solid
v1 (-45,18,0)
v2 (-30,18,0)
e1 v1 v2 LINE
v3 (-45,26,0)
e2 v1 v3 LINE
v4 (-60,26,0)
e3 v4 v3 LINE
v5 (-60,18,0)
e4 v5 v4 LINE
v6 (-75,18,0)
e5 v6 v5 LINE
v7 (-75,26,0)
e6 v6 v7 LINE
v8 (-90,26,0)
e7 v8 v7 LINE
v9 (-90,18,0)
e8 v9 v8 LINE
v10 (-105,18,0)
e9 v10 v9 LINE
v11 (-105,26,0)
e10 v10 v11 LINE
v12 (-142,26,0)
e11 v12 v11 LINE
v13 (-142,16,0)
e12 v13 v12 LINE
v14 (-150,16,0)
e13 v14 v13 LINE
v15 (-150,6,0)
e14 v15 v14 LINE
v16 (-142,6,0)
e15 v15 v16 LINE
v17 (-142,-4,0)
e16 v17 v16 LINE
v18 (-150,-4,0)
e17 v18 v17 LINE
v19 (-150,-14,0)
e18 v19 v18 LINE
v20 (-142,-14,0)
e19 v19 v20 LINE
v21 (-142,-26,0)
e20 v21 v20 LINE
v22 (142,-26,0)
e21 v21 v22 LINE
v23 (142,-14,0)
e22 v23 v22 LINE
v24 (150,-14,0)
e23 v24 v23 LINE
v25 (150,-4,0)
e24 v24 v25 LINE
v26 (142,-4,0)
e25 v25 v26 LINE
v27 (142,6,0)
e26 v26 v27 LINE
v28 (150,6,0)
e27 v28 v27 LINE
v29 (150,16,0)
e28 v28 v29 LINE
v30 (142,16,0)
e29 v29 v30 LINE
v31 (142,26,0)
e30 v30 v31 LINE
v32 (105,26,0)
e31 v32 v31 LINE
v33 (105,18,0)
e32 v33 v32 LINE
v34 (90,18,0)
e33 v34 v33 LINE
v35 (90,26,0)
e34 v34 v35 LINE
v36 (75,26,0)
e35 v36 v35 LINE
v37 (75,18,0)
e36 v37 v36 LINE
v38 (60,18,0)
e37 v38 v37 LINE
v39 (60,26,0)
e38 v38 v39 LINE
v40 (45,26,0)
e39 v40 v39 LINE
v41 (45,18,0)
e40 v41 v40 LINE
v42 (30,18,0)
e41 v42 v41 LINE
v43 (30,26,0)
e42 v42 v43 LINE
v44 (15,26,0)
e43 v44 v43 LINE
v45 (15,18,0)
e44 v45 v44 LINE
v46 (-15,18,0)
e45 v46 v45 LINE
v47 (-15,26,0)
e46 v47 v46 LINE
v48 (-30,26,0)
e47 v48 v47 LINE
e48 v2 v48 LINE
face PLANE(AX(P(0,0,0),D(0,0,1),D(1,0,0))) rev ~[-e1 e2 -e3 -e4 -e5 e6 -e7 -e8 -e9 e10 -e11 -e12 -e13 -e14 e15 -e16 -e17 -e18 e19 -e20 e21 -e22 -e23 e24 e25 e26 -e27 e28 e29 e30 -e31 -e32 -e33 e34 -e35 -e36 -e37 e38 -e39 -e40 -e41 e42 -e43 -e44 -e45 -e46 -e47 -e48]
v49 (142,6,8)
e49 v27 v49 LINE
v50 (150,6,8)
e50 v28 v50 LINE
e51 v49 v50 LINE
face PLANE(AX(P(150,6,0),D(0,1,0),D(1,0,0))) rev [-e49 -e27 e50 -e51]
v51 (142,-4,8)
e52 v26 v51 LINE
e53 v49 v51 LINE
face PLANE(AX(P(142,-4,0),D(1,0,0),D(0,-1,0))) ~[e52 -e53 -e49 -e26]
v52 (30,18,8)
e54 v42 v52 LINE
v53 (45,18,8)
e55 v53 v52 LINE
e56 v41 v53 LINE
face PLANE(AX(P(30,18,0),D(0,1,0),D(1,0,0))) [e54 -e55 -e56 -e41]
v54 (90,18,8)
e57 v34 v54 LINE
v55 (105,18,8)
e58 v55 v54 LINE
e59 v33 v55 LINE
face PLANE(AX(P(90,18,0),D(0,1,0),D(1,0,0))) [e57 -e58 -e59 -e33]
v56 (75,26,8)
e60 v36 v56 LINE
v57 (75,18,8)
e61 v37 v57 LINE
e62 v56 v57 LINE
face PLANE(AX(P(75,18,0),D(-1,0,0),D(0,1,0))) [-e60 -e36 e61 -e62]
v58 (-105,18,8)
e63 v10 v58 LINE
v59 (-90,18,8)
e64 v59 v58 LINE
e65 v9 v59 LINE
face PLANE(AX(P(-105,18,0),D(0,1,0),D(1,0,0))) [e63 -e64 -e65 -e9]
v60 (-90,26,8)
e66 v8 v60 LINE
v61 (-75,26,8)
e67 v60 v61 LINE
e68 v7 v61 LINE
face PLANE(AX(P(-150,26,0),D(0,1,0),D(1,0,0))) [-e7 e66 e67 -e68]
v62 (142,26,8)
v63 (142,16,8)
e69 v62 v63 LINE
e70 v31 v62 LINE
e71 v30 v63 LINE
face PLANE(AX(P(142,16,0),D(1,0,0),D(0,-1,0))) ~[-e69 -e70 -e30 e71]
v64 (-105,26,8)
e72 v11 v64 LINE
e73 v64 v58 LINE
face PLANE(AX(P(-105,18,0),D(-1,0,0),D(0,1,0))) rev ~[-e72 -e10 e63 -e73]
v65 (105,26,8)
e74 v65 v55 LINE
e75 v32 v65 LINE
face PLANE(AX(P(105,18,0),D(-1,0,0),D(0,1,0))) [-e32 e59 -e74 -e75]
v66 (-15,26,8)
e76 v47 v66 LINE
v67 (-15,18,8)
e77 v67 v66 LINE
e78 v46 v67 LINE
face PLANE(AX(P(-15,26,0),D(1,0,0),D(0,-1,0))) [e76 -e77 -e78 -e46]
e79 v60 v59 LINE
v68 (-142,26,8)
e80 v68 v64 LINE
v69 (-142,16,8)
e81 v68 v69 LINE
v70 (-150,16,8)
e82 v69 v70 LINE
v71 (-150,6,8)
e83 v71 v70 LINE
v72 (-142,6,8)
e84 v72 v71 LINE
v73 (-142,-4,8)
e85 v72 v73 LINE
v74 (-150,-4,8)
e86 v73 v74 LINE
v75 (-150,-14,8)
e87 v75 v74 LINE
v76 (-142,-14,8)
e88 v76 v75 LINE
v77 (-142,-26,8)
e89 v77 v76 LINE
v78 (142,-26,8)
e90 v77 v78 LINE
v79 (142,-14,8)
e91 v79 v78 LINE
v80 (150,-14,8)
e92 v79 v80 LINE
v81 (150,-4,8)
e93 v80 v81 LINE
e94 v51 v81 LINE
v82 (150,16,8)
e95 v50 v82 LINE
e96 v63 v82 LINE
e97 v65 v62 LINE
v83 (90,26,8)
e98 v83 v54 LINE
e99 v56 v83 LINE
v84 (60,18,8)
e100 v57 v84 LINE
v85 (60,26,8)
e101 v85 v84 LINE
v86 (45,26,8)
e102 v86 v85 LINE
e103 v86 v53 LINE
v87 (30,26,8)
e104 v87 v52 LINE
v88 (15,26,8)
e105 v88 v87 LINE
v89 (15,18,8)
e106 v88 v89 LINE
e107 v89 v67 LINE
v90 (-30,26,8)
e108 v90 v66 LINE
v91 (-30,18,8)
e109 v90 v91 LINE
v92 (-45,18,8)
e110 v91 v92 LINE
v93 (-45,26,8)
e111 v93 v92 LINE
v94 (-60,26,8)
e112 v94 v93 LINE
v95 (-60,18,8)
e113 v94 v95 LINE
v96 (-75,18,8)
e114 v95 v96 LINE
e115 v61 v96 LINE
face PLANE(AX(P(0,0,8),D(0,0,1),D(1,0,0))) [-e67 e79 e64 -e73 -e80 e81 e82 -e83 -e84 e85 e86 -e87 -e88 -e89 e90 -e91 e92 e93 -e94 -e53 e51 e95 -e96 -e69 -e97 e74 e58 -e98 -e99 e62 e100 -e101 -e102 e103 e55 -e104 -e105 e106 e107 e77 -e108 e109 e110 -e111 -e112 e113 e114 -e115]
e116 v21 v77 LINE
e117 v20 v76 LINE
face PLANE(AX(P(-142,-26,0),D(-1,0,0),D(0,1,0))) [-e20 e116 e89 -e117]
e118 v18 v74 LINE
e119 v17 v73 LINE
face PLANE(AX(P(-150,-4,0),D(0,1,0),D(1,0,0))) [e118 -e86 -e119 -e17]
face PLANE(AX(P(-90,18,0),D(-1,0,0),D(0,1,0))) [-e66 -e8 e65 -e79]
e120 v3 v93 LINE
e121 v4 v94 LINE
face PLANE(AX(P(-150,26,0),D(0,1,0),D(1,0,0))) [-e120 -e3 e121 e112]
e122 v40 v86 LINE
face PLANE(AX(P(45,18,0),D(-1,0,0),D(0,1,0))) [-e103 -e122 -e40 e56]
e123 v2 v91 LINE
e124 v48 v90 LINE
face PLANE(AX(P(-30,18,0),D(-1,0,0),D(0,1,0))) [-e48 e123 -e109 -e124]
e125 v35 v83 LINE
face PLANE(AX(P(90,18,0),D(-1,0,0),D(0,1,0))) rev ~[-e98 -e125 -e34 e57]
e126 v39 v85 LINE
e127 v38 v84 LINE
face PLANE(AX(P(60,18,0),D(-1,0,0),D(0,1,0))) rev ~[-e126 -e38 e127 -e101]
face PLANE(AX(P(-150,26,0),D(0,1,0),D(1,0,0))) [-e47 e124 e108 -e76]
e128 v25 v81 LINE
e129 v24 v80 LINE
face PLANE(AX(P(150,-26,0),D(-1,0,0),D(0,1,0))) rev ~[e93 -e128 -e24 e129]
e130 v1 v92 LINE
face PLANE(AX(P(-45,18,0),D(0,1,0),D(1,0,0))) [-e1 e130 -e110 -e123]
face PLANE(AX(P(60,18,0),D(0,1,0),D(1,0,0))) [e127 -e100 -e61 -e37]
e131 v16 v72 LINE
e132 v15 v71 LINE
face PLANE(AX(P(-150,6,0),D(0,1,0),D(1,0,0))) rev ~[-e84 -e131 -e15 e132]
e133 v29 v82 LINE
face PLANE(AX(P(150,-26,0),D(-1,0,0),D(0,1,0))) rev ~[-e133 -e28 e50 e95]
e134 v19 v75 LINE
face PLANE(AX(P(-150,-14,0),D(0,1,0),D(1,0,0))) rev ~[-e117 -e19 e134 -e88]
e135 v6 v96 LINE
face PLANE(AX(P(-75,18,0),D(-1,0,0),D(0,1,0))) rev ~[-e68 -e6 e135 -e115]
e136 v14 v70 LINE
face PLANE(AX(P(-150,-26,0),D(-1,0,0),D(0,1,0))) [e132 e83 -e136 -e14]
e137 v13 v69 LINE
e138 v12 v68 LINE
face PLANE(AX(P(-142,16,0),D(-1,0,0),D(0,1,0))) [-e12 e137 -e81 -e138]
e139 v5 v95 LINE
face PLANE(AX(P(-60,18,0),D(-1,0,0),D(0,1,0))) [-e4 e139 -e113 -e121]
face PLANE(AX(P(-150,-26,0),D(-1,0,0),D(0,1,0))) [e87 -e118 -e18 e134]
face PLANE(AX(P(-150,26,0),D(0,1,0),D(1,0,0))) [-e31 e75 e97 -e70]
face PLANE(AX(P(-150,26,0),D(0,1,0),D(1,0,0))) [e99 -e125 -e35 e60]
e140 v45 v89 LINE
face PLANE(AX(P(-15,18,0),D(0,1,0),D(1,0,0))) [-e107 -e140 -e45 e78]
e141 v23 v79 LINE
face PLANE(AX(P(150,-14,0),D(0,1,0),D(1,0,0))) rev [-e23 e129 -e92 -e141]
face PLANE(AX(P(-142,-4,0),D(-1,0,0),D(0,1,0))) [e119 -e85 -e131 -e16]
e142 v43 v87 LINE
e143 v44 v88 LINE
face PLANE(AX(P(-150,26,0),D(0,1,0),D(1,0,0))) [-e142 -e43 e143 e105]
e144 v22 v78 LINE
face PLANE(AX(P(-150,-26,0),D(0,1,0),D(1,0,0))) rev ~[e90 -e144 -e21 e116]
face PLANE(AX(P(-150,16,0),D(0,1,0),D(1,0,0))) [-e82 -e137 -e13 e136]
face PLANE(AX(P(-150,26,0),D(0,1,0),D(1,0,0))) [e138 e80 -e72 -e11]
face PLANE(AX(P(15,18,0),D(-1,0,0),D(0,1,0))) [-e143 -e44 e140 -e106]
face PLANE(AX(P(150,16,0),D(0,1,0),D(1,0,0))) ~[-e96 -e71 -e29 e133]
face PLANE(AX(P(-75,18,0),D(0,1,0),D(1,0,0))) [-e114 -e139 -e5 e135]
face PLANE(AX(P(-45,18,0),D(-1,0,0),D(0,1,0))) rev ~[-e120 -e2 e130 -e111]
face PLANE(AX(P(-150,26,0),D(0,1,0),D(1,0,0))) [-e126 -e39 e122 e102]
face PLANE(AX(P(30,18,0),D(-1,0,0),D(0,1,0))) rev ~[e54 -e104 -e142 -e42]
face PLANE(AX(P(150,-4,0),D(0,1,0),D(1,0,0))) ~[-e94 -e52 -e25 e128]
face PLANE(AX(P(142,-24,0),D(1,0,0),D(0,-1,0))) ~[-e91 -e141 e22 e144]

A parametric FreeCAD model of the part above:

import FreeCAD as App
import Part
import Sketcher
Q = App.Units.Quantity


def add_polygon(sketch, points):
    """Adds a closed chain of lines whose ends are joined by coincident constraints."""
    first, n = sketch.GeometryCount, len(points)
    for a, b in zip(points, points[1:] + points[:1]):
        sketch.addGeometry(Part.LineSegment(App.Vector(*a, 0), App.Vector(*b, 0)), False)
    for i in range(n):
        sketch.addConstraint(Sketcher.Constraint("Coincident", first + i, 2, first + (i + 1) % n, 1))

doc = App.newDocument("Part")
params = doc.addObject("Spreadsheet::Sheet", "Params")
for row, (alias, value) in enumerate([
    ("sketch1_width", "300 mm"),
    ("sketch1_height", "52 mm"),
    ("pad1_length", "8 mm"),
    ("sketch2_width", "8 mm"),
    ("sketch2_height", "10 mm"),
    ("sketch3_width", "8 mm"),
    ("sketch3_height", "2 mm"),
    ("sketch4_width", "15 mm"),
    ("sketch4_width2", "30 mm"),
    ("sketch4_height", "8 mm"),
    ("pocket3_length", "10 mm"),
], start=1):
    params.set(f"A{row}", alias)
    params.set(f"B{row}", "=" + value)
    params.setAlias(f"B{row}", alias)

body = doc.addObject("PartDesign::Body", "Body")

sketch1 = body.newObject("Sketcher::SketchObject", "Sketch")
sketch1.AttachmentSupport = (doc.getObject("XY_Plane"), [""])
sketch1.MapMode = "FlatFace"
add_polygon(sketch1, [(-150, 26), (-150, -26), (150, -26), (150, 26)])
sketch1.addConstraint([
    Sketcher.Constraint("Vertical", 0),
    Sketcher.Constraint("Horizontal", 1),
    Sketcher.Constraint("Vertical", 2),
    Sketcher.Constraint("Horizontal", 3),
    Sketcher.Constraint("Symmetric", 0, 2, 2, 2, -1, 1),
    Sketcher.Constraint("DistanceX", 1, 1, 1, 2, Q("300 mm")),
    Sketcher.Constraint("DistanceY", 0, 2, 0, 1, Q("52 mm")),
])
sketch1.setExpression("Constraints[9]", "Params.sketch1_width")
sketch1.setExpression("Constraints[10]", "Params.sketch1_height")
pad1 = body.newObject("PartDesign::Pad", "Pad")
pad1.Profile = sketch1
pad1.setExpression("Length", "Params.pad1_length")

sketch2 = body.newObject("Sketcher::SketchObject", "Sketch001")
sketch2.AttachmentSupport = (doc.getObject("XY_Plane"), [""])
sketch2.MapMode = "FlatFace"
add_polygon(sketch2, [(-150, 6), (-150, -4), (-142, -4), (-142, 6)])
add_polygon(sketch2, [(-150, 26), (-150, 16), (-142, 16), (-142, 26)])
add_polygon(sketch2, [(-150, -14), (-150, -24), (-142, -24), (-142, -14)])
sketch2.addConstraint([
    Sketcher.Constraint("Vertical", 0),
    Sketcher.Constraint("Horizontal", 1),
    Sketcher.Constraint("Vertical", 2),
    Sketcher.Constraint("Horizontal", 3),
    Sketcher.Constraint("Vertical", 4),
    Sketcher.Constraint("Horizontal", 5),
    Sketcher.Constraint("Vertical", 6),
    Sketcher.Constraint("Horizontal", 7),
    Sketcher.Constraint("Vertical", 8),
    Sketcher.Constraint("Horizontal", 9),
    Sketcher.Constraint("Vertical", 10),
    Sketcher.Constraint("Horizontal", 11),
    Sketcher.Constraint("Vertical", 3, 2, 4, 2),
    Sketcher.Constraint("Vertical", 2, 2, 5, 2),
    Sketcher.Constraint("Vertical", 7, 2, 8, 2),
    Sketcher.Constraint("Vertical", 6, 2, 9, 2),
    Sketcher.Constraint("Equal", 2, 4),
    Sketcher.Constraint("Equal", 6, 8),
    Sketcher.Constraint("DistanceX", 1, 1, 1, 2, Q("8 mm")),
    Sketcher.Constraint("DistanceY", 0, 2, 0, 1, Q("10 mm")),
    Sketcher.Constraint("DistanceX", 0, 2, -1, 1, Q("150 mm")),
    Sketcher.Constraint("DistanceY", 0, 2, -1, 1, Q("4 mm")),
    Sketcher.Constraint("DistanceY", -1, 1, 4, 2, Q("16 mm")),
    Sketcher.Constraint("DistanceY", 8, 2, -1, 1, Q("24 mm")),
])
sketch2.setExpression("Constraints[30]", "Params.sketch2_width")
sketch2.setExpression("Constraints[31]", "Params.sketch2_height")
pocket1 = body.newObject("PartDesign::Pocket", "Pocket")
pocket1.Profile = sketch2
pocket1.Type = "ThroughAll"
pocket1.Reversed = True

sketch3 = body.newObject("Sketcher::SketchObject", "Sketch002")
sketch3.AttachmentSupport = (doc.getObject("XY_Plane"), [""])
sketch3.MapMode = "FlatFace"
add_polygon(sketch3, [(-150, -24), (-150, -26), (-142, -26), (-142, -24)])
sketch3.addConstraint([
    Sketcher.Constraint("Vertical", 0),
    Sketcher.Constraint("Horizontal", 1),
    Sketcher.Constraint("Vertical", 2),
    Sketcher.Constraint("Horizontal", 3),
    Sketcher.Constraint("DistanceX", 1, 1, 1, 2, Q("8 mm")),
    Sketcher.Constraint("DistanceY", 0, 2, 0, 1, Q("2 mm")),
    Sketcher.Constraint("DistanceX", 0, 2, -1, 1, Q("150 mm")),
    Sketcher.Constraint("DistanceY", 0, 2, -1, 1, Q("26 mm")),
])
sketch3.setExpression("Constraints[8]", "Params.sketch3_width")
sketch3.setExpression("Constraints[9]", "Params.sketch3_height")
pocket2 = body.newObject("PartDesign::Pocket", "Pocket001")
pocket2.Profile = sketch3
pocket2.Type = "ThroughAll"
pocket2.Reversed = True
doc.recompute()

mirrored = body.newObject("PartDesign::Mirrored", "Mirrored")
mirrored.Originals = [pocket1, pocket2]
mirrored.MirrorPlane = (doc.getObject("YZ_Plane"), [""])
body.Tip = mirrored

sketch4 = body.newObject("Sketcher::SketchObject", "Sketch003")
sketch4.AttachmentSupport = (doc.getObject("XY_Plane"), [""])
sketch4.MapMode = "FlatFace"
add_polygon(sketch4, [(-105, 26), (-105, 18), (-90, 18), (-90, 26)])
add_polygon(sketch4, [(-45, 26), (-45, 18), (-30, 18), (-30, 26)])
add_polygon(sketch4, [(30, 26), (30, 18), (45, 18), (45, 26)])
add_polygon(sketch4, [(60, 26), (60, 18), (75, 18), (75, 26)])
add_polygon(sketch4, [(90, 26), (90, 18), (105, 18), (105, 26)])
add_polygon(sketch4, [(-75, 26), (-75, 18), (-60, 18), (-60, 26)])
add_polygon(sketch4, [(15, 18), (15, 26), (-15, 26), (-15, 18)])
sketch4.addConstraint([
    Sketcher.Constraint("Vertical", 0),
    Sketcher.Constraint("Horizontal", 1),
    Sketcher.Constraint("Vertical", 2),
    Sketcher.Constraint("Horizontal", 3),
    Sketcher.Constraint("Vertical", 4),
    Sketcher.Constraint("Horizontal", 5),
    Sketcher.Constraint("Vertical", 6),
    Sketcher.Constraint("Horizontal", 7),
    Sketcher.Constraint("Vertical", 8),
    Sketcher.Constraint("Horizontal", 9),
    Sketcher.Constraint("Vertical", 10),
    Sketcher.Constraint("Horizontal", 11),
    Sketcher.Constraint("Vertical", 12),
    Sketcher.Constraint("Horizontal", 13),
    Sketcher.Constraint("Vertical", 14),
    Sketcher.Constraint("Horizontal", 15),
    Sketcher.Constraint("Vertical", 16),
    Sketcher.Constraint("Horizontal", 17),
    Sketcher.Constraint("Vertical", 18),
    Sketcher.Constraint("Horizontal", 19),
    Sketcher.Constraint("Vertical", 20),
    Sketcher.Constraint("Horizontal", 21),
    Sketcher.Constraint("Vertical", 22),
    Sketcher.Constraint("Horizontal", 23),
    Sketcher.Constraint("Vertical", 24),
    Sketcher.Constraint("Horizontal", 25),
    Sketcher.Constraint("Vertical", 26),
    Sketcher.Constraint("Horizontal", 27),
    Sketcher.Constraint("Symmetric", 5, 2, 8, 2, -2),
    Sketcher.Constraint("Symmetric", 7, 2, 10, 2, -2),
    Sketcher.Constraint("Symmetric", 1, 2, 16, 2, -2),
    Sketcher.Constraint("Symmetric", 3, 2, 18, 2, -2),
    Sketcher.Constraint("Symmetric", 13, 2, 20, 2, -2),
    Sketcher.Constraint("Symmetric", 15, 2, 22, 2, -2),
    Sketcher.Constraint("Horizontal", 1, 2, 4, 2),
    Sketcher.Constraint("Horizontal", 3, 2, 6, 2),
    Sketcher.Constraint("Horizontal", 9, 2, 12, 2),
    Sketcher.Constraint("Horizontal", 11, 2, 14, 2),
    Sketcher.Constraint("Horizontal", 23, 2, 24, 2),
    Sketcher.Constraint("Horizontal", 21, 2, 26, 2),
    Sketcher.Constraint("Equal", 3, 5),
    Sketcher.Constraint("Equal", 11, 13),
    Sketcher.Constraint("DistanceX", 1, 1, 1, 2, Q("15 mm")),
    Sketcher.Constraint("DistanceX", 25, 2, 25, 1, Q("30 mm")),
    Sketcher.Constraint("DistanceY", 0, 2, 0, 1, Q("8 mm")),
    Sketcher.Constraint("DistanceX", 0, 2, -1, 1, Q("105 mm")),
    Sketcher.Constraint("DistanceY", -1, 1, 0, 2, Q("18 mm")),
    Sketcher.Constraint("DistanceX", 4, 2, -1, 1, Q("45 mm")),
    Sketcher.Constraint("DistanceX", -1, 1, 12, 2, Q("60 mm")),
    Sketcher.Constraint("DistanceX", -1, 1, 24, 2, Q("15 mm")),
])
sketch4.setExpression("Constraints[70]", "Params.sketch4_width")
sketch4.setExpression("Constraints[71]", "Params.sketch4_width2")
sketch4.setExpression("Constraints[72]", "Params.sketch4_height")
pocket3 = body.newObject("PartDesign::Pocket", "Pocket002")
pocket3.Profile = sketch4
pocket3.setExpression("Length", "Params.pocket3_length")
pocket3.Reversed = True

doc.recompute()
